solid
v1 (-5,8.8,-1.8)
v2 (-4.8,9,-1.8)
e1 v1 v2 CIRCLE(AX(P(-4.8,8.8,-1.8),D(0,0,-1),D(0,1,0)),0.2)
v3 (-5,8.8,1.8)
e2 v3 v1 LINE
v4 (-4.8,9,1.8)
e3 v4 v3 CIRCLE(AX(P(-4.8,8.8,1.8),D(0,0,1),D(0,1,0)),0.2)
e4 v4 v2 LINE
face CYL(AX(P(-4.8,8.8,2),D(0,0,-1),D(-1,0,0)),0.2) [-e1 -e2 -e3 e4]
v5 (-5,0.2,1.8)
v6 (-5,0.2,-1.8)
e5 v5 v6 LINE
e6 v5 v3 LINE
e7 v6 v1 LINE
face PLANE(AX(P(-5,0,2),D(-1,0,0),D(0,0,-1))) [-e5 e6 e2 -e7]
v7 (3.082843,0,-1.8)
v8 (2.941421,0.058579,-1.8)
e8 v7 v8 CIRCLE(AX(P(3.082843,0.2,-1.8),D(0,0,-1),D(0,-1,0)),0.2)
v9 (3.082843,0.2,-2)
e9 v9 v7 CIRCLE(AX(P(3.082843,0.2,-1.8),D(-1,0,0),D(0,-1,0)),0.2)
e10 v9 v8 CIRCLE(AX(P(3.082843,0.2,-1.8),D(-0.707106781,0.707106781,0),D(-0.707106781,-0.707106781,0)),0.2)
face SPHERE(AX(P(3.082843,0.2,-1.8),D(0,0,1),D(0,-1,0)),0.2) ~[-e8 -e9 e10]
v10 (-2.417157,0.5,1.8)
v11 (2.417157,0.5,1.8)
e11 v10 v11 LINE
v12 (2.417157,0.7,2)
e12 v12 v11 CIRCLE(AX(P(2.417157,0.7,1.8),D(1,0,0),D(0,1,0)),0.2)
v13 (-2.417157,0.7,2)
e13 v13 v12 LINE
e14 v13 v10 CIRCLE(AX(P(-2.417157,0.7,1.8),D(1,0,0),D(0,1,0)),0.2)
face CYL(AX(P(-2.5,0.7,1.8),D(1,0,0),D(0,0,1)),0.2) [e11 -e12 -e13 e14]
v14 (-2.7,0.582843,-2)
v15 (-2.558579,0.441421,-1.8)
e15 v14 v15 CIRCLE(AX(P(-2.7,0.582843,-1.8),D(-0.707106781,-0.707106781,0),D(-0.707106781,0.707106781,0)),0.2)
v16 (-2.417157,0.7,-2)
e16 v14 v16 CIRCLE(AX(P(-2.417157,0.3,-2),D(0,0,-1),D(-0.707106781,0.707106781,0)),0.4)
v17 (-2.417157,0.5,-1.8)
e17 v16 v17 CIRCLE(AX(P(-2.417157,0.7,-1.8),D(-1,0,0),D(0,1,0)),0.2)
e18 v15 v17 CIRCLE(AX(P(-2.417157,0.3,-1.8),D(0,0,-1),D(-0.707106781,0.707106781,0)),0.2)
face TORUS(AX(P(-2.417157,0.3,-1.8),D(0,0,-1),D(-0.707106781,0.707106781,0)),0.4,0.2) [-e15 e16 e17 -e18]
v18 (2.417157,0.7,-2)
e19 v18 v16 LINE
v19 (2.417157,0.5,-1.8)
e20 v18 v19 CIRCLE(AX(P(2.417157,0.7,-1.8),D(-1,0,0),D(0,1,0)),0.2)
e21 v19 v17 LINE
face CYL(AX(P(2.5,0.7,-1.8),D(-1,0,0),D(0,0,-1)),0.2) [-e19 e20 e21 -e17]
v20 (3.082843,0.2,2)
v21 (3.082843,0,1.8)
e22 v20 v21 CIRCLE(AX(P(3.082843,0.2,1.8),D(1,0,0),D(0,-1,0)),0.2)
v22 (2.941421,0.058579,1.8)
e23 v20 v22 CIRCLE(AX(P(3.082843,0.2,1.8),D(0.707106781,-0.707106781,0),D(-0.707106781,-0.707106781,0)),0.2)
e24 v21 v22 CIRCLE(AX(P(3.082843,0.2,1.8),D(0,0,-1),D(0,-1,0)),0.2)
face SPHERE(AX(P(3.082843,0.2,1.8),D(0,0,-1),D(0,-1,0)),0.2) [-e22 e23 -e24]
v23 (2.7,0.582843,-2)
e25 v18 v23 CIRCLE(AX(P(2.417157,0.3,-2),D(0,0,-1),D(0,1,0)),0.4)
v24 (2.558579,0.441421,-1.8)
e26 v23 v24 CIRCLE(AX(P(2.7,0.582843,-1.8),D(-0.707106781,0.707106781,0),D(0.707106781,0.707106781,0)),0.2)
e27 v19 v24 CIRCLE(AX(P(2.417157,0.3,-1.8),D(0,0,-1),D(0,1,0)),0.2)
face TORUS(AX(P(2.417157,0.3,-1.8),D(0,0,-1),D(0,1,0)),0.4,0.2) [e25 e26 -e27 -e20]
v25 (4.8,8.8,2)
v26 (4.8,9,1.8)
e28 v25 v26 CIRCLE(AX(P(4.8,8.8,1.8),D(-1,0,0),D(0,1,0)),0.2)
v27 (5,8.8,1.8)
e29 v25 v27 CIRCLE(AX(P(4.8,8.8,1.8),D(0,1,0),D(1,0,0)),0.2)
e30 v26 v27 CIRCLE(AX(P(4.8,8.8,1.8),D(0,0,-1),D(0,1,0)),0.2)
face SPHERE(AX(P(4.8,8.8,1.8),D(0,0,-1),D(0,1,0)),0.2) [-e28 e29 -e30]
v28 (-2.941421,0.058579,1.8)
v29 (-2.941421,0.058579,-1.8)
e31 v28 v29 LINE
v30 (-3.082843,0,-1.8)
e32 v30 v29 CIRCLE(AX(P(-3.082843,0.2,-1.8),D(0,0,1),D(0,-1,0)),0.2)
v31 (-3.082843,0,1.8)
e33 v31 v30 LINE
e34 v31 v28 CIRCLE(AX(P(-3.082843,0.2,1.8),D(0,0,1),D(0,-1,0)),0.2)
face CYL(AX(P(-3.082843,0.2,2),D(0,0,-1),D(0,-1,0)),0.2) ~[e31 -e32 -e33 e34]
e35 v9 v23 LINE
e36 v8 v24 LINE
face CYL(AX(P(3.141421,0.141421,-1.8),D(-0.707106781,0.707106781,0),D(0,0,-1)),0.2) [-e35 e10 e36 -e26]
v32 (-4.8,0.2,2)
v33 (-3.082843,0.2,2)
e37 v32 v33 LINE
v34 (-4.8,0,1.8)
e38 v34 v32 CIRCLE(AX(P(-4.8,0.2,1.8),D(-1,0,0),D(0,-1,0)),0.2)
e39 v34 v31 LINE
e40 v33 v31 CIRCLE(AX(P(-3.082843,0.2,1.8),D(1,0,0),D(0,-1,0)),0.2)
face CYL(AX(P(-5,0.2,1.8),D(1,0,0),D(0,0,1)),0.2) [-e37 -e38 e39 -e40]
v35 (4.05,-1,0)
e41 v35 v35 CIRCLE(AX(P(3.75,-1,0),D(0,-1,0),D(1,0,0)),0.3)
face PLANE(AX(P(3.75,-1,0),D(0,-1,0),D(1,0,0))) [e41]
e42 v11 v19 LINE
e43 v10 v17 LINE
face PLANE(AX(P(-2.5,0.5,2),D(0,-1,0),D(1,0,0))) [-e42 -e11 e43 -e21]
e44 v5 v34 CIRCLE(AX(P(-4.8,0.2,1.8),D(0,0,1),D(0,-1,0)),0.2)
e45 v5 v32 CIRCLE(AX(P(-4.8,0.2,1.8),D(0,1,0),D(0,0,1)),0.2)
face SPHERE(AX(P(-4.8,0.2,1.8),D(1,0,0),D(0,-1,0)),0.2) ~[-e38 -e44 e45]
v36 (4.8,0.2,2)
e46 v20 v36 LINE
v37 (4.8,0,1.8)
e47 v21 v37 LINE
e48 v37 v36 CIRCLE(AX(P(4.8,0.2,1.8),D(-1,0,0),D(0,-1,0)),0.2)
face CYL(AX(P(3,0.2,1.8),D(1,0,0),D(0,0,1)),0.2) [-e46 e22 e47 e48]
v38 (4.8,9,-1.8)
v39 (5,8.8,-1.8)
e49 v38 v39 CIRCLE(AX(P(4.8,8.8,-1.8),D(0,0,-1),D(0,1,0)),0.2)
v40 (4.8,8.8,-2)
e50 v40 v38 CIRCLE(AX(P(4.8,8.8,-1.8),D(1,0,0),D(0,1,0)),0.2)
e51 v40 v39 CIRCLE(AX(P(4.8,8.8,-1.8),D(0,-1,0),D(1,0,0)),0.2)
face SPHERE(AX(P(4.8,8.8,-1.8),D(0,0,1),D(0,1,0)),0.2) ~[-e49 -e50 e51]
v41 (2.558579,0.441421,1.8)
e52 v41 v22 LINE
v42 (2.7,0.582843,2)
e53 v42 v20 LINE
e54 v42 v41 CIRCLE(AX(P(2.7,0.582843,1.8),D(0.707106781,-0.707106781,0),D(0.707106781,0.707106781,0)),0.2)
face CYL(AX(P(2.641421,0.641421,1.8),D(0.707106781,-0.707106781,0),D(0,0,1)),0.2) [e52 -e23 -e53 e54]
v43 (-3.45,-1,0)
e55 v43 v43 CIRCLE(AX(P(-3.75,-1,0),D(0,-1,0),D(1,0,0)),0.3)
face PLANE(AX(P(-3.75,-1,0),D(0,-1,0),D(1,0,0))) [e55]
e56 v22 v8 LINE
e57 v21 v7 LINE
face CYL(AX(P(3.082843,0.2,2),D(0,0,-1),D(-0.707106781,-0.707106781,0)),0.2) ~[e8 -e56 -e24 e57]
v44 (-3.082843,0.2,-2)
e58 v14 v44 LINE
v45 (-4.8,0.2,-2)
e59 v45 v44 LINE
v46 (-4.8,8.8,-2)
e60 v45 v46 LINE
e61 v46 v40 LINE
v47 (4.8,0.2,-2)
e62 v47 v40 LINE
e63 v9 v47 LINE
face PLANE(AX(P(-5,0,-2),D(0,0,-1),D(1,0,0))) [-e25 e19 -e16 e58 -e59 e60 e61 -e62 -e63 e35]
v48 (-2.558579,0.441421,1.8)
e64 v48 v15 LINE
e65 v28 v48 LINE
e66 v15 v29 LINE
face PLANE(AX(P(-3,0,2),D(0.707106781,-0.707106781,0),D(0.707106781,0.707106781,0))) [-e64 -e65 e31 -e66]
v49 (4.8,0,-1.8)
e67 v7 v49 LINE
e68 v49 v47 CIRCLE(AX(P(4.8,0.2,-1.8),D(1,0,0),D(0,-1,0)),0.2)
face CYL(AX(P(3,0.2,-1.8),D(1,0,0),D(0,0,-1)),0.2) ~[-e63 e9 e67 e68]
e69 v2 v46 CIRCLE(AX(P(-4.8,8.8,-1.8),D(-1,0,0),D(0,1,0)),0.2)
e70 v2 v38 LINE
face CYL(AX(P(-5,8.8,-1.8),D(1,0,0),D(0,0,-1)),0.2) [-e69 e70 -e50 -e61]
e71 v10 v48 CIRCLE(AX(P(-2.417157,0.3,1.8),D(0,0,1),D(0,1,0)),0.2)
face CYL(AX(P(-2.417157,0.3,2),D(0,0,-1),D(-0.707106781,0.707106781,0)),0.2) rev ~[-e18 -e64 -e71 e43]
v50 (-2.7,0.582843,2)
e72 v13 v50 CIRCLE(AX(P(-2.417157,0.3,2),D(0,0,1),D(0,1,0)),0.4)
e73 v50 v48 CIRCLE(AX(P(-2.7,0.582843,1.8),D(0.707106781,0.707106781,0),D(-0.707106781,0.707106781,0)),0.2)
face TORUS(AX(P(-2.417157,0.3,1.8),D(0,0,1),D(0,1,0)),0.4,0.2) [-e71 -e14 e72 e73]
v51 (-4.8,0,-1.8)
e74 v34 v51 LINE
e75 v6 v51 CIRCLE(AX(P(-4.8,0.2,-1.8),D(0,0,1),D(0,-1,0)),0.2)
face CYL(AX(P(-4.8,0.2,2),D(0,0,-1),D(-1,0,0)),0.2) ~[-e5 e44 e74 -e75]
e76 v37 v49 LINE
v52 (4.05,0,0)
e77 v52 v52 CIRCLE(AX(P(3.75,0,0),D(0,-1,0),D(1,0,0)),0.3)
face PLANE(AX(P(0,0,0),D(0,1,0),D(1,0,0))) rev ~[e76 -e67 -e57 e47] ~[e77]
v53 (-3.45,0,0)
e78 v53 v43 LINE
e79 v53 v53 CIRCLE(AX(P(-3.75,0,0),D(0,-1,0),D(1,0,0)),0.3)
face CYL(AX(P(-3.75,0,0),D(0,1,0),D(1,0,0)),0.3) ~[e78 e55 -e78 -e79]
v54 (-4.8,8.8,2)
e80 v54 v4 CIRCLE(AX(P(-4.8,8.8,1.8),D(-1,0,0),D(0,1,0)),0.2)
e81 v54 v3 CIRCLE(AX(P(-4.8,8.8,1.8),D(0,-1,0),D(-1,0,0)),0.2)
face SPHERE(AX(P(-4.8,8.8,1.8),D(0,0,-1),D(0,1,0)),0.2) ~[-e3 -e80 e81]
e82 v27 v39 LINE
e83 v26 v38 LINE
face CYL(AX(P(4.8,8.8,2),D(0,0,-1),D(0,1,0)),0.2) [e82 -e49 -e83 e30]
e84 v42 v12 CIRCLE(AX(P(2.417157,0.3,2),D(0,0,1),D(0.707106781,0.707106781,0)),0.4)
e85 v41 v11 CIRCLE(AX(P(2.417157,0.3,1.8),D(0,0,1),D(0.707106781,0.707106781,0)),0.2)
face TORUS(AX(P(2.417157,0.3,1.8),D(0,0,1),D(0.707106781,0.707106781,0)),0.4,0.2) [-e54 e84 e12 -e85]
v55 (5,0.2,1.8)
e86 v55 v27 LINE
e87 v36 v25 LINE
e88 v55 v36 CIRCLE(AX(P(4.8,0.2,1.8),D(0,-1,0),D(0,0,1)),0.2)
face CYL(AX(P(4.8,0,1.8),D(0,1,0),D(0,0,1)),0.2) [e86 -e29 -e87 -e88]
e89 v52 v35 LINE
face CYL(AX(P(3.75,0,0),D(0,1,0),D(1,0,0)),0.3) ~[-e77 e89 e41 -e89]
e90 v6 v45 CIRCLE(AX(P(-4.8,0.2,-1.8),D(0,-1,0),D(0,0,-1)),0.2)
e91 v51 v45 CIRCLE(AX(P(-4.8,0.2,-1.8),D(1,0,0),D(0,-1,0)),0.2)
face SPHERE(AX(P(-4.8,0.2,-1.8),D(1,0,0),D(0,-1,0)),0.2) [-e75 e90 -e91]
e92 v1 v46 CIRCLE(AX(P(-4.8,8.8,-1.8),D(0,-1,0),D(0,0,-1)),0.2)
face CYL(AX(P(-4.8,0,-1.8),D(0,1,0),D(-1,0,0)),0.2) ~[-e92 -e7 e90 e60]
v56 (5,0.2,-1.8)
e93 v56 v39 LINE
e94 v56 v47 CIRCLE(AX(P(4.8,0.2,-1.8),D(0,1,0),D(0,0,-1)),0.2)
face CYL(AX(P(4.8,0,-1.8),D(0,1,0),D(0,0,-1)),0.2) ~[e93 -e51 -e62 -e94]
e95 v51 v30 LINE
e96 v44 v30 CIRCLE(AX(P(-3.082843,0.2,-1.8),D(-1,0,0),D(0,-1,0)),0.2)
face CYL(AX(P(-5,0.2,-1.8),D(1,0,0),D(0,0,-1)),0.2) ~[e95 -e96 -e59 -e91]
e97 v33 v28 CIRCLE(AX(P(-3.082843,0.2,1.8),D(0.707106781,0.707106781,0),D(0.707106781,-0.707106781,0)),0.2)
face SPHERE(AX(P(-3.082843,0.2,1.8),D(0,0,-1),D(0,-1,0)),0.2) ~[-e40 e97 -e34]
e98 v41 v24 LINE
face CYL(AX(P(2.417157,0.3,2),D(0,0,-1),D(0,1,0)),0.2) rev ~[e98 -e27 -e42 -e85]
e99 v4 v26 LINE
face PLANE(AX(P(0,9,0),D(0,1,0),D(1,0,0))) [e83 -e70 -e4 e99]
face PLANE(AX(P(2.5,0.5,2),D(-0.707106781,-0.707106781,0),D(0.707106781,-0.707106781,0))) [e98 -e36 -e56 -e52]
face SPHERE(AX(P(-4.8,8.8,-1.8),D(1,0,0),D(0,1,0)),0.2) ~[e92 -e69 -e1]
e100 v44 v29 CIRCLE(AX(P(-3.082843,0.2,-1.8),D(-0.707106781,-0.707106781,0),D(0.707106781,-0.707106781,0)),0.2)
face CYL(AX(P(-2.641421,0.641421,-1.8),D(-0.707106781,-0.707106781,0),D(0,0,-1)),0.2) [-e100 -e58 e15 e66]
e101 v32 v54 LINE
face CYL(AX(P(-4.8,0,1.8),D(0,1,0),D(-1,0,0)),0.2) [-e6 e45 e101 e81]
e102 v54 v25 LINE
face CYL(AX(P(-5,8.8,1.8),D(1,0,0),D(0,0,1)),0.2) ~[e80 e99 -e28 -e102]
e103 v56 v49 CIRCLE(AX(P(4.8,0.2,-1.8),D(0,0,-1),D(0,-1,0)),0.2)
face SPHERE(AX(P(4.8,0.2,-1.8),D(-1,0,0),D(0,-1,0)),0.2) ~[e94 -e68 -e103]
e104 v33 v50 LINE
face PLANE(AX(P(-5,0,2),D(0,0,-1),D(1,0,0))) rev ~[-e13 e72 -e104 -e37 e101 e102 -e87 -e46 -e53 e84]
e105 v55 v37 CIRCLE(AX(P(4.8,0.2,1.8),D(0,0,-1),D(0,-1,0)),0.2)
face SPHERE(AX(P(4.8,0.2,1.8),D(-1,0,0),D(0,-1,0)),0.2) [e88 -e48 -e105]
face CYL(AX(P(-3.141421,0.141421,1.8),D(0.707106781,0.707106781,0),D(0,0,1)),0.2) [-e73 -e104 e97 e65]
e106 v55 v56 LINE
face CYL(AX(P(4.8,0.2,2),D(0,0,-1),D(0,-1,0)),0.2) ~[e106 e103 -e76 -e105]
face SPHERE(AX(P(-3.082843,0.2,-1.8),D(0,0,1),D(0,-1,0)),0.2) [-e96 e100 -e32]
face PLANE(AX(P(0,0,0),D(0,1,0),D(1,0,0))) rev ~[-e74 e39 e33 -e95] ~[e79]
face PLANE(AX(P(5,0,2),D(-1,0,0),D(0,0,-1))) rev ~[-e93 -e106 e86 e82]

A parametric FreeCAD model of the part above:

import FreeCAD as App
import Part
import Sketcher

V = App.Vector
Q = App.Units.Quantity


def edges_at(feature, points):
    """Names of the edges that pass closest to the given points."""
    edges = feature.Shape.Edges
    near = lambda p: min(range(len(edges)), key=lambda i: edges[i].distToShape(Part.Vertex(*p))[0])
    return sorted({f"Edge{near(p) + 1}" for p in points})

doc = App.newDocument("Part")
params = doc.addObject("Spreadsheet::Sheet", "Params")
for row, (alias, value) in enumerate([
    ("sketch1_width", "10 mm"),
    ("sketch1_height", "4 mm"),
    ("pad1_length", "9 mm"),
    ("sketch2_width", "6 mm"),
    ("sketch2_width2", "5 mm"),
    ("sketch2_height", "1.5 mm"),
    ("sketch3_diameter", "0.6 mm"),
    ("pad2_length", "1 mm"),
    ("fillet_radius", "0.2 mm"),
], start=1):
    params.set(f"A{row}", alias)
    params.set(f"B{row}", "=" + value)
    params.setAlias(f"B{row}", alias)

body = doc.addObject("PartDesign::Body", "Body")

sketch1 = doc.addObject("Sketcher::SketchObject", "Sketch")
body.addObject(sketch1)
sketch1.AttachmentSupport = (doc.XZ_Plane, [""])
sketch1.MapMode = "FlatFace"
sketch1.addGeometry(Part.LineSegment(V(-5, -2, 0), V(-5, 2, 0)), False)
sketch1.addGeometry(Part.LineSegment(V(-5, 2, 0), V(5, 2, 0)), False)
sketch1.addGeometry(Part.LineSegment(V(5, 2, 0), V(5, -2, 0)), False)
sketch1.addGeometry(Part.LineSegment(V(5, -2, 0), V(-5, -2, 0)), False)
sketch1.addConstraint(Sketcher.Constraint("Coincident", 0, 2, 1, 1))
sketch1.addConstraint(Sketcher.Constraint("Coincident", 1, 2, 2, 1))
sketch1.addConstraint(Sketcher.Constraint("Coincident", 2, 2, 3, 1))
sketch1.addConstraint(Sketcher.Constraint("Coincident", 3, 2, 0, 1))
sketch1.addConstraint(Sketcher.Constraint("Vertical", 0))
sketch1.addConstraint(Sketcher.Constraint("Horizontal", 1))
sketch1.addConstraint(Sketcher.Constraint("Vertical", 2))
sketch1.addConstraint(Sketcher.Constraint("Horizontal", 3))
sketch1.addConstraint(Sketcher.Constraint("Symmetric", 0, 2, 2, 2, -1, 1))
sketch1.addConstraint(Sketcher.Constraint("DistanceX", 1, 1, 1, 2, Q("10 mm")))
sketch1.addConstraint(Sketcher.Constraint("DistanceY", 0, 1, 0, 2, Q("4 mm")))
sketch1.setExpression("Constraints[9]", "Params.sketch1_width")
sketch1.setExpression("Constraints[10]", "Params.sketch1_height")
pad1 = doc.addObject("PartDesign::Pad", "Pad")
body.addObject(pad1)
pad1.Profile = sketch1
pad1.setExpression("Length", "Params.pad1_length")
pad1.Reversed = True

sketch2 = doc.addObject("Sketcher::SketchObject", "Sketch001")
body.addObject(sketch2)
sketch2.AttachmentSupport = (doc.XY_Plane, [""])
sketch2.MapMode = "FlatFace"
sketch2.AttachmentOffset = App.Placement(V(0, 0, 2), App.Rotation())
sketch2.addGeometry(Part.LineSegment(V(-2.5, 0.5, 0), V(-3, 0, 0)), False)
sketch2.addGeometry(Part.LineSegment(V(-3, 0, 0), V(-3, -1.5, 0)), False)
sketch2.addGeometry(Part.LineSegment(V(-3, -1.5, 0), V(3, -1.5, 0)), False)
sketch2.addGeometry(Part.LineSegment(V(3, -1.5, 0), V(3, 0, 0)), False)
sketch2.addGeometry(Part.LineSegment(V(3, 0, 0), V(2.5, 0.5, 0)), False)
sketch2.addGeometry(Part.LineSegment(V(2.5, 0.5, 0), V(-2.5, 0.5, 0)), False)
sketch2.addConstraint(Sketcher.Constraint("Coincident", 0, 2, 1, 1))
sketch2.addConstraint(Sketcher.Constraint("Coincident", 1, 2, 2, 1))
sketch2.addConstraint(Sketcher.Constraint("Coincident", 2, 2, 3, 1))
sketch2.addConstraint(Sketcher.Constraint("Coincident", 3, 2, 4, 1))
sketch2.addConstraint(Sketcher.Constraint("Coincident", 4, 2, 5, 1))
sketch2.addConstraint(Sketcher.Constraint("Coincident", 5, 2, 0, 1))
sketch2.addConstraint(Sketcher.Constraint("Vertical", 1))
sketch2.addConstraint(Sketcher.Constraint("Horizontal", 2))
sketch2.addConstraint(Sketcher.Constraint("Vertical", 3))
sketch2.addConstraint(Sketcher.Constraint("Horizontal", 5))
sketch2.addConstraint(Sketcher.Constraint("Symmetric", 0, 2, 3, 2, -1, 1))
sketch2.addConstraint(Sketcher.Constraint("PointOnObject", 0, 2, -1))
sketch2.addConstraint(Sketcher.Constraint("Perpendicular", 0, 4))
sketch2.addConstraint(Sketcher.Constraint("Equal", 0, 4))
sketch2.addConstraint(Sketcher.Constraint("DistanceX", 2, 1, 2, 2, Q("6 mm")))
sketch2.addConstraint(Sketcher.Constraint("DistanceX", 5, 2, 5, 1, Q("5 mm")))
sketch2.addConstraint(Sketcher.Constraint("DistanceY", 1, 2, 1, 1, Q("1.5 mm")))
sketch2.setExpression("Constraints[14]", "Params.sketch2_width")
sketch2.setExpression("Constraints[15]", "Params.sketch2_width2")
sketch2.setExpression("Constraints[16]", "Params.sketch2_height")
pocket1 = doc.addObject("PartDesign::Pocket", "Pocket")
body.addObject(pocket1)
pocket1.Profile = sketch2
pocket1.Type = "ThroughAll"

sketch3 = doc.addObject("Sketcher::SketchObject", "Sketch002")
body.addObject(sketch3)
sketch3.AttachmentSupport = (doc.XZ_Plane, [""])
sketch3.MapMode = "FlatFace"
sketch3.addGeometry(Part.Circle(V(3.75, 0, 0), V(0, 0, 1), 0.3), False)
sketch3.addGeometry(Part.Circle(V(-3.75, 0, 0), V(0, 0, 1), 0.3), False)
sketch3.addConstraint(Sketcher.Constraint("Equal", 0, 1))
sketch3.addConstraint(Sketcher.Constraint("Symmetric", 0, 3, 1, 3, -1, 1))
sketch3.addConstraint(Sketcher.Constraint("PointOnObject", 0, 3, -1))
sketch3.addConstraint(Sketcher.Constraint("Diameter", 0, Q("0.6 mm")))
sketch3.addConstraint(Sketcher.Constraint("DistanceX", 1, 3, 0, 3, Q("7.5 mm")))
sketch3.setExpression("Constraints[3]", "Params.sketch3_diameter")
pad2 = doc.addObject("PartDesign::Pad", "Pad001")
body.addObject(pad2)
pad2.Profile = sketch3
pad2.setExpression("Length", "Params.pad2_length")
doc.recompute()

fillet = doc.addObject("PartDesign::Fillet", "Fillet")
body.addObject(fillet)
fillet.Base = (pad2, edges_at(pad2, [
    (5, 9, 0),
    (0, 9, -2),
    (-4, 0, -2),
    (4, 0, 2),
    (2.75, 0.25, 2),
    (0, 0.5, 2),
    (-2.75, 0.25, 2),
    (-2.75, 0.25, -2),
    (-3, 0, 0),
    (0, 0.5, -2),
    (-2.5, 0.5, 0),
    (2.75, 0.25, -2),
    (2.5, 0.5, 0),
    (3, 0, 0),
    (-5, 9, 0),
    (4, 0, -2),
    (5, 0, 0),
    (-4, 0, 2),
    (-5, 0, 0),
    (0, 9, 2),
    (-5, 4.5, -2),
    (5, 4.5, -2),
    (5, 4.5, 2),
    (-5, 4.5, 2),
]))
fillet.setExpression("Radius", "Params.fillet_radius")

doc.recompute()
